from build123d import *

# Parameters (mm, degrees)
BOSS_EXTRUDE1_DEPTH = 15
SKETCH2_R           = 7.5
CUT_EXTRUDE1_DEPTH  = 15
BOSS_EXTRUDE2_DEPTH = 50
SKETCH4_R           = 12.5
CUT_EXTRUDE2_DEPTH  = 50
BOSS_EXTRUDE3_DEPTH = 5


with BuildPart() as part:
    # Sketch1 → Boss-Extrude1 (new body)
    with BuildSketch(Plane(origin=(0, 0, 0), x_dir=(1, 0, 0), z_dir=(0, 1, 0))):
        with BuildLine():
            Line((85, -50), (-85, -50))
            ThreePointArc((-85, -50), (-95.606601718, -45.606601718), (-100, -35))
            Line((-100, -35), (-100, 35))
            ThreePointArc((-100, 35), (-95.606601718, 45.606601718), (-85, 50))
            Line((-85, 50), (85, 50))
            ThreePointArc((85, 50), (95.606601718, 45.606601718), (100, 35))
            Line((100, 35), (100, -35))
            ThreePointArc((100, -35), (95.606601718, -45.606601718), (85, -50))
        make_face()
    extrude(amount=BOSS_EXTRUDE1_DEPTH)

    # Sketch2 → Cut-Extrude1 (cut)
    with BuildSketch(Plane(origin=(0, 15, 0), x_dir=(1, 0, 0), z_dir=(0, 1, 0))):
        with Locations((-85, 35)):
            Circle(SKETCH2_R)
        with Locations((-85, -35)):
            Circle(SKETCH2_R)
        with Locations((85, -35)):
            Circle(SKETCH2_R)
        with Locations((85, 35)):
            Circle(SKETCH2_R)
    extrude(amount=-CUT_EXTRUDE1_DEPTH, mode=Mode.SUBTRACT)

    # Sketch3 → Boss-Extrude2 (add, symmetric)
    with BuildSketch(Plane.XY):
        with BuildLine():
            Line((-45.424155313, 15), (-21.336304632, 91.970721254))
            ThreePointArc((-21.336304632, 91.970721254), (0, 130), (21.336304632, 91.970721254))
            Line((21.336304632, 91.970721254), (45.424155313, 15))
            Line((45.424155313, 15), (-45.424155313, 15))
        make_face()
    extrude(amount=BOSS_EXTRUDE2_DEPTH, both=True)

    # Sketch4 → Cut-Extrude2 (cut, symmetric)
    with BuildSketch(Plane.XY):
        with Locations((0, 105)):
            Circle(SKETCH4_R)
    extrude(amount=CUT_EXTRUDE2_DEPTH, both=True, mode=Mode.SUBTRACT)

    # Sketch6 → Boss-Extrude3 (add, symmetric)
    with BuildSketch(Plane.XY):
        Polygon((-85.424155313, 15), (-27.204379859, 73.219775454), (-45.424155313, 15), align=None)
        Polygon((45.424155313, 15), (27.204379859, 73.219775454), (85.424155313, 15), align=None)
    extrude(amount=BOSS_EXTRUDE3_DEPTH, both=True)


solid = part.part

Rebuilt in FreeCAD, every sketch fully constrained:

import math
import FreeCAD as App
import Part
import Sketcher

V = App.Vector
Q = App.Units.Quantity


def add_polygon(sketch, points):
    """Adds a closed chain of lines whose ends are joined by coincident constraints."""
    first, n = sketch.GeometryCount, len(points)
    for a, b in zip(points, points[1:] + points[:1]):
        sketch.addGeometry(Part.LineSegment(App.Vector(*a, 0), App.Vector(*b, 0)), False)
    for i in range(n):
        sketch.addConstraint(Sketcher.Constraint("Coincident", first + i, 2, first + (i + 1) % n, 1))

doc = App.newDocument("Part")
body = doc.addObject("PartDesign::Body", "Body")

# Sketch on XZ plane
sketch1 = body.newObject("Sketcher::SketchObject", "Sketch")
sketch1.AttachmentSupport = (doc.getObject("XZ_Plane"), [""])
sketch1.MapMode = "FlatFace"
sketch1.addGeometry(Part.LineSegment(V(-85, 50, 0), V(85, 50, 0)), False)
sketch1.addGeometry(Part.ArcOfCircle(Part.Circle(V(85, 35, 0), V(0, 0, 1), 15), math.radians(0), math.radians(90)), False)
sketch1.addGeometry(Part.LineSegment(V(100, 35, 0), V(100, -35, 0)), False)
sketch1.addGeometry(Part.ArcOfCircle(Part.Circle(V(85, -35, 0), V(0, 0, 1), 15), math.radians(-90), math.radians(0)), False)
sketch1.addGeometry(Part.LineSegment(V(85, -50, 0), V(-85, -50, 0)), False)
sketch1.addGeometry(Part.ArcOfCircle(Part.Circle(V(-85, -35, 0), V(0, 0, 1), 15), math.radians(180), math.radians(270)), False)
sketch1.addGeometry(Part.LineSegment(V(-100, -35, 0), V(-100, 35, 0)), False)
sketch1.addGeometry(Part.ArcOfCircle(Part.Circle(V(-85, 35, 0), V(0, 0, 1), 15), math.radians(90), math.radians(180)), False)
sketch1.addConstraint(Sketcher.Constraint("Tangent", 0, 2, 1, 2))
sketch1.addConstraint(Sketcher.Constraint("Tangent", 1, 1, 2, 1))
sketch1.addConstraint(Sketcher.Constraint("Tangent", 2, 2, 3, 2))
sketch1.addConstraint(Sketcher.Constraint("Tangent", 3, 1, 4, 1))
sketch1.addConstraint(Sketcher.Constraint("Tangent", 4, 2, 5, 2))
sketch1.addConstraint(Sketcher.Constraint("Tangent", 5, 1, 6, 1))
sketch1.addConstraint(Sketcher.Constraint("Tangent", 6, 2, 7, 2))
sketch1.addConstraint(Sketcher.Constraint("Tangent", 7, 1, 0, 1))
sketch1.addConstraint(Sketcher.Constraint("Horizontal", 0))
sketch1.addConstraint(Sketcher.Constraint("Vertical", 2))
sketch1.addConstraint(Sketcher.Constraint("Horizontal", 4))
sketch1.addConstraint(Sketcher.Constraint("Vertical", 6))
sketch1.addConstraint(Sketcher.Constraint("Equal", 1, 3))
sketch1.addConstraint(Sketcher.Constraint("Equal", 3, 5))
sketch1.addConstraint(Sketcher.Constraint("Equal", 5, 7))
sketch1.addConstraint(Sketcher.Constraint("Symmetric", 1, 3, 5, 3, -1, 1))
sketch1.addConstraint(Sketcher.Constraint("Radius", 1, Q("15 mm")))
sketch1.addConstraint(Sketcher.Constraint("DistanceX", 0, 1, 0, 2, Q("170 mm")))
sketch1.addConstraint(Sketcher.Constraint("DistanceY", 2, 2, 2, 1, Q("70 mm")))
pad1 = body.newObject("PartDesign::Pad", "Pad")
pad1.Profile = sketch1
pad1.Length = 15
pad1.Reversed = True

# Sketch on XZ plane
sketch2 = body.newObject("Sketcher::SketchObject", "Sketch001")
sketch2.AttachmentSupport = (doc.getObject("XZ_Plane"), [""])
sketch2.MapMode = "FlatFace"
sketch2.AttachmentOffset = App.Placement(V(0, 0, -15), App.Rotation())
sketch2.addGeometry(Part.Circle(V(-85, -35, 0), V(0, 0, 1), 8), False)
sketch2.addGeometry(Part.Circle(V(-85, 35, 0), V(0, 0, 1), 8), False)
sketch2.addGeometry(Part.Circle(V(85, 35, 0), V(0, 0, 1), 8), False)
sketch2.addGeometry(Part.Circle(V(85, -35, 0), V(0, 0, 1), 8), False)
sketch2.addConstraint(Sketcher.Constraint("Equal", 0, 1))
sketch2.addConstraint(Sketcher.Constraint("Equal", 1, 2))
sketch2.addConstraint(Sketcher.Constraint("Equal", 2, 3))
sketch2.addConstraint(Sketcher.Constraint("Symmetric", 0, 3, 2, 3, -1, 1))
sketch2.addConstraint(Sketcher.Constraint("Symmetric", 1, 3, 3, 3, -1, 1))
sketch2.addConstraint(Sketcher.Constraint("Symmetric", 1, 3, 2, 3, -2))
sketch2.addConstraint(Sketcher.Constraint("Diameter", 0, Q("15 mm")))
sketch2.addConstraint(Sketcher.Constraint("DistanceX", 0, 3, -1, 1, Q("85 mm")))
sketch2.addConstraint(Sketcher.Constraint("DistanceY", 0, 3, -1, 1, Q("35 mm")))
pocket1 = body.newObject("PartDesign::Pocket", "Pocket")
pocket1.Profile = sketch2
pocket1.Length = 15
pocket1.Reversed = True

# Sketch on XY plane
sketch3 = body.newObject("Sketcher::SketchObject", "Sketch002")
sketch3.AttachmentSupport = (doc.getObject("XY_Plane"), [""])
sketch3.MapMode = "FlatFace"
sketch3.addGeometry(Part.LineSegment(V(-21, 92, 0), V(-45, 15, 0)), False)
sketch3.addGeometry(Part.LineSegment(V(-45, 15, 0), V(45, 15, 0)), False)
sketch3.addGeometry(Part.LineSegment(V(45, 15, 0), V(21, 92, 0)), False)
sketch3.addGeometry(Part.ArcOfCircle(Part.Circle(V(0, 105, 0), V(0, 0, 1), 25), math.radians(-31), math.radians(211)), False)
sketch3.addConstraint(Sketcher.Constraint("Coincident", 0, 2, 1, 1))
sketch3.addConstraint(Sketcher.Constraint("Coincident", 1, 2, 2, 1))
sketch3.addConstraint(Sketcher.Constraint("Coincident", 2, 2, 3, 1))
sketch3.addConstraint(Sketcher.Constraint("Coincident", 3, 2, 0, 1))
sketch3.addConstraint(Sketcher.Constraint("Horizontal", 1))
sketch3.addConstraint(Sketcher.Constraint("Symmetric", 2, 2, 3, 2, -2))
sketch3.addConstraint(Sketcher.Constraint("Equal", 0, 2))
sketch3.addConstraint(Sketcher.Constraint("Radius", 3, Q("25 mm")))
sketch3.addConstraint(Sketcher.Constraint("DistanceY", -1, 1, 3, 3, Q("105 mm")))
sketch3.addConstraint(Sketcher.Constraint("DistanceY", -1, 1, 0, 2, Q("15 mm")))
sketch3.addConstraint(Sketcher.Constraint("DistanceX", 1, 1, 1, 2, Q("90.848311 mm")))
sketch3.addConstraint(Sketcher.Constraint("DistanceY", -1, 1, 2, 2, Q("91.970721 mm")))
pad2 = body.newObject("PartDesign::Pad", "Pad001")
pad2.Profile = sketch3
pad2.Length = 100
pad2.Midplane = True

# Sketch on XY plane
sketch4 = body.newObject("Sketcher::SketchObject", "Sketch003")
sketch4.AttachmentSupport = (doc.getObject("XY_Plane"), [""])
sketch4.MapMode = "FlatFace"
sketch4.addGeometry(Part.Circle(V(0, 105, 0), V(0, 0, 1), 12), False)
sketch4.addConstraint(Sketcher.Constraint("PointOnObject", 0, 3, -2))
sketch4.addConstraint(Sketcher.Constraint("Diameter", 0, Q("25 mm")))
sketch4.addConstraint(Sketcher.Constraint("DistanceY", -1, 1, 0, 3, Q("105 mm")))
pocket2 = body.newObject("PartDesign::Pocket", "Pocket001")
pocket2.Profile = sketch4
pocket2.Length = 100
pocket2.Midplane = True

# Sketch on XY plane
sketch5 = body.newObject("Sketcher::SketchObject", "Sketch004")
sketch5.AttachmentSupport = (doc.getObject("XY_Plane"), [""])
sketch5.MapMode = "FlatFace"
add_polygon(sketch5, [(-27, 73), (-85, 15), (-45, 15)])  # lines 0-2
add_polygon(sketch5, [(27, 73), (45, 15), (85, 15)])  # lines 3-5
sketch5.addConstraint(Sketcher.Constraint("Horizontal", 1))
sketch5.addConstraint(Sketcher.Constraint("Horizontal", 4))
sketch5.addConstraint(Sketcher.Constraint("Symmetric", 1, 2, 3, 2, -2))
sketch5.addConstraint(Sketcher.Constraint("Symmetric", 2, 2, 5, 2, -2))
sketch5.addConstraint(Sketcher.Constraint("Perpendicular", 0, 5))
sketch5.addConstraint(Sketcher.Constraint("Equal", 1, 4))
sketch5.addConstraint(Sketcher.Constraint("DistanceX", 1, 1, 1, 2, Q("40 mm")))
sketch5.addConstraint(Sketcher.Constraint("DistanceY", -1, 1, 0, 2, Q("15 mm")))
sketch5.addConstraint(Sketcher.Constraint("Distance", 2, Q("61.004118 mm")))
sketch5.addConstraint(Sketcher.Constraint("DistanceX", 2, 2, -1, 1, Q("27.20438 mm")))
pad3 = body.newObject("PartDesign::Pad", "Pad002")
pad3.Profile = sketch5
pad3.Length = 10
pad3.Midplane = True

doc.recompute()
